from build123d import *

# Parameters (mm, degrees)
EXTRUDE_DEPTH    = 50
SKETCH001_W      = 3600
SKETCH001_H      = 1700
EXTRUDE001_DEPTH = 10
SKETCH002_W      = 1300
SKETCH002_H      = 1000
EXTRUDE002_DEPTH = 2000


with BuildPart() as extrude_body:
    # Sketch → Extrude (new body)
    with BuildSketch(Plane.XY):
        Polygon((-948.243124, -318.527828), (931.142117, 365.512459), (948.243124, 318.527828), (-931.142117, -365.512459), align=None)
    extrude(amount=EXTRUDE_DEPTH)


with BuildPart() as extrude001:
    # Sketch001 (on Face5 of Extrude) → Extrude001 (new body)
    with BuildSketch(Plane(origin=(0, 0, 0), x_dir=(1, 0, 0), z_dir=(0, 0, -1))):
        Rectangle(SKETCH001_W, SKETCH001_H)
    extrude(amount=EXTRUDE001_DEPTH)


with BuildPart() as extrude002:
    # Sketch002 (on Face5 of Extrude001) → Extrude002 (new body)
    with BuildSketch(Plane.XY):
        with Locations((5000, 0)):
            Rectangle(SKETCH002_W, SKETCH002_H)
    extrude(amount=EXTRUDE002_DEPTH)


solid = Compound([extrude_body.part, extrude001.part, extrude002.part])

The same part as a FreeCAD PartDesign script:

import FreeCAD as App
import Part
import Sketcher
Q = App.Units.Quantity

doc = App.newDocument("Part")
params = doc.addObject("Spreadsheet::Sheet", "Params")
for row, (alias, value) in enumerate([
    ("sketch1_length", "2000 mm"),
    ("sketch1_length2", "50 mm"),
    ("pad1_length", "50 mm"),
    ("sketch2_width", "3600 mm"),
    ("sketch2_height", "1700 mm"),
    ("pad2_length", "10 mm"),
    ("sketch3_width", "1300 mm"),
    ("sketch3_height", "1000 mm"),
    ("pad3_length", "2000 mm"),
], start=1):
    params.set(f"A{row}", alias)
    params.set(f"B{row}", "=" + value)
    params.setAlias(f"B{row}", alias)

body = doc.addObject("PartDesign::Body", "Body")

sketch1 = body.newObject("Sketcher::SketchObject", "Sketch")
sketch1.AttachmentSupport = (doc.getObject("XY_Plane"), [""])
sketch1.MapMode = "FlatFace"
sketch1.addGeometry(Part.LineSegment(App.Vector(931.142117, 365.512459, 0), App.Vector(-948.243124, -318.527828, 0)), False)
sketch1.addGeometry(Part.LineSegment(App.Vector(-948.243124, -318.527828, 0), App.Vector(-931.142117, -365.512459, 0)), False)
sketch1.addGeometry(Part.LineSegment(App.Vector(-931.142117, -365.512459, 0), App.Vector(948.243124, 318.527828, 0)), False)
sketch1.addGeometry(Part.LineSegment(App.Vector(948.243124, 318.527828, 0), App.Vector(931.142117, 365.512459, 0)), False)
sketch1.addConstraint(Sketcher.Constraint("Coincident", 0, 2, 1, 1))
sketch1.addConstraint(Sketcher.Constraint("Coincident", 1, 2, 2, 1))
sketch1.addConstraint(Sketcher.Constraint("Coincident", 2, 2, 3, 1))
sketch1.addConstraint(Sketcher.Constraint("Coincident", 3, 2, 0, 1))
sketch1.addConstraint(Sketcher.Constraint("Symmetric", 0, 2, 2, 2, -1, 1))
sketch1.addConstraint(Sketcher.Constraint("Symmetric", 1, 2, 3, 2, -1, 1))
sketch1.addConstraint(Sketcher.Constraint("Perpendicular", 0, 1))
sketch1.addConstraint(Sketcher.Constraint("Angle", 0, Q("-160 deg")))
sketch1.addConstraint(Sketcher.Constraint("Distance", 0, 2000.0))
sketch1.addConstraint(Sketcher.Constraint("Distance", 1, 50.0))
sketch1.setExpression("Constraints[8]", "Params.sketch1_length")
sketch1.setExpression("Constraints[9]", "Params.sketch1_length2")
pad1 = body.newObject("PartDesign::Pad", "Pad")
pad1.Profile = sketch1
pad1.setExpression("Length", "Params.pad1_length")
body2 = doc.addObject("PartDesign::Body", "Body001")

sketch2 = body2.newObject("Sketcher::SketchObject", "Sketch001")
sketch2.AttachmentSupport = (doc.getObject("XY_Plane001"), [""])
sketch2.MapMode = "FlatFace"
sketch2.addGeometry(Part.LineSegment(App.Vector(-1800, -850, 0), App.Vector(-1800, 850, 0)), False)
sketch2.addGeometry(Part.LineSegment(App.Vector(-1800, 850, 0), App.Vector(1800, 850, 0)), False)
sketch2.addGeometry(Part.LineSegment(App.Vector(1800, 850, 0), App.Vector(1800, -850, 0)), False)
sketch2.addGeometry(Part.LineSegment(App.Vector(1800, -850, 0), App.Vector(-1800, -850, 0)), False)
sketch2.addConstraint(Sketcher.Constraint("Coincident", 0, 2, 1, 1))
sketch2.addConstraint(Sketcher.Constraint("Coincident", 1, 2, 2, 1))
sketch2.addConstraint(Sketcher.Constraint("Coincident", 2, 2, 3, 1))
sketch2.addConstraint(Sketcher.Constraint("Coincident", 3, 2, 0, 1))
sketch2.addConstraint(Sketcher.Constraint("Vertical", 0))
sketch2.addConstraint(Sketcher.Constraint("Horizontal", 1))
sketch2.addConstraint(Sketcher.Constraint("Vertical", 2))
sketch2.addConstraint(Sketcher.Constraint("Horizontal", 3))
sketch2.addConstraint(Sketcher.Constraint("Symmetric", 0, 2, 2, 2, -1, 1))
sketch2.addConstraint(Sketcher.Constraint("DistanceX", 1, 1, 1, 2, 3600.0))
sketch2.addConstraint(Sketcher.Constraint("DistanceY", 0, 1, 0, 2, 1700.0))
sketch2.setExpression("Constraints[9]", "Params.sketch2_width")
sketch2.setExpression("Constraints[10]", "Params.sketch2_height")
pad2 = body2.newObject("PartDesign::Pad", "Pad001")
pad2.Profile = sketch2
pad2.setExpression("Length", "Params.pad2_length")
pad2.Reversed = True
body3 = doc.addObject("PartDesign::Body", "Body002")

sketch3 = body3.newObject("Sketcher::SketchObject", "Sketch002")
sketch3.AttachmentSupport = (doc.getObject("XY_Plane002"), [""])
sketch3.MapMode = "FlatFace"
sketch3.addGeometry(Part.LineSegment(App.Vector(4350, 500, 0), App.Vector(4350, -500, 0)), False)
sketch3.addGeometry(Part.LineSegment(App.Vector(4350, -500, 0), App.Vector(5650, -500, 0)), False)
sketch3.addGeometry(Part.LineSegment(App.Vector(5650, -500, 0), App.Vector(5650, 500, 0)), False)
sketch3.addGeometry(Part.LineSegment(App.Vector(5650, 500, 0), App.Vector(4350, 500, 0)), False)
sketch3.addConstraint(Sketcher.Constraint("Coincident", 0, 2, 1, 1))
sketch3.addConstraint(Sketcher.Constraint("Coincident", 1, 2, 2, 1))
sketch3.addConstraint(Sketcher.Constraint("Coincident", 2, 2, 3, 1))
sketch3.addConstraint(Sketcher.Constraint("Coincident", 3, 2, 0, 1))
sketch3.addConstraint(Sketcher.Constraint("Vertical", 0))
sketch3.addConstraint(Sketcher.Constraint("Horizontal", 1))
sketch3.addConstraint(Sketcher.Constraint("Vertical", 2))
sketch3.addConstraint(Sketcher.Constraint("Horizontal", 3))
sketch3.addConstraint(Sketcher.Constraint("DistanceX", 1, 1, 1, 2, 1300.0))
sketch3.addConstraint(Sketcher.Constraint("DistanceY", 0, 2, 0, 1, 1000.0))
sketch3.addConstraint(Sketcher.Constraint("DistanceX", -1, 1, 0, 2, 4350.0))
sketch3.addConstraint(Sketcher.Constraint("DistanceY", 0, 2, -1, 1, 500.0))
sketch3.setExpression("Constraints[8]", "Params.sketch3_width")
sketch3.setExpression("Constraints[9]", "Params.sketch3_height")
pad3 = body3.newObject("PartDesign::Pad", "Pad002")
pad3.Profile = sketch3
pad3.setExpression("Length", "Params.pad3_length")

doc.recompute()
